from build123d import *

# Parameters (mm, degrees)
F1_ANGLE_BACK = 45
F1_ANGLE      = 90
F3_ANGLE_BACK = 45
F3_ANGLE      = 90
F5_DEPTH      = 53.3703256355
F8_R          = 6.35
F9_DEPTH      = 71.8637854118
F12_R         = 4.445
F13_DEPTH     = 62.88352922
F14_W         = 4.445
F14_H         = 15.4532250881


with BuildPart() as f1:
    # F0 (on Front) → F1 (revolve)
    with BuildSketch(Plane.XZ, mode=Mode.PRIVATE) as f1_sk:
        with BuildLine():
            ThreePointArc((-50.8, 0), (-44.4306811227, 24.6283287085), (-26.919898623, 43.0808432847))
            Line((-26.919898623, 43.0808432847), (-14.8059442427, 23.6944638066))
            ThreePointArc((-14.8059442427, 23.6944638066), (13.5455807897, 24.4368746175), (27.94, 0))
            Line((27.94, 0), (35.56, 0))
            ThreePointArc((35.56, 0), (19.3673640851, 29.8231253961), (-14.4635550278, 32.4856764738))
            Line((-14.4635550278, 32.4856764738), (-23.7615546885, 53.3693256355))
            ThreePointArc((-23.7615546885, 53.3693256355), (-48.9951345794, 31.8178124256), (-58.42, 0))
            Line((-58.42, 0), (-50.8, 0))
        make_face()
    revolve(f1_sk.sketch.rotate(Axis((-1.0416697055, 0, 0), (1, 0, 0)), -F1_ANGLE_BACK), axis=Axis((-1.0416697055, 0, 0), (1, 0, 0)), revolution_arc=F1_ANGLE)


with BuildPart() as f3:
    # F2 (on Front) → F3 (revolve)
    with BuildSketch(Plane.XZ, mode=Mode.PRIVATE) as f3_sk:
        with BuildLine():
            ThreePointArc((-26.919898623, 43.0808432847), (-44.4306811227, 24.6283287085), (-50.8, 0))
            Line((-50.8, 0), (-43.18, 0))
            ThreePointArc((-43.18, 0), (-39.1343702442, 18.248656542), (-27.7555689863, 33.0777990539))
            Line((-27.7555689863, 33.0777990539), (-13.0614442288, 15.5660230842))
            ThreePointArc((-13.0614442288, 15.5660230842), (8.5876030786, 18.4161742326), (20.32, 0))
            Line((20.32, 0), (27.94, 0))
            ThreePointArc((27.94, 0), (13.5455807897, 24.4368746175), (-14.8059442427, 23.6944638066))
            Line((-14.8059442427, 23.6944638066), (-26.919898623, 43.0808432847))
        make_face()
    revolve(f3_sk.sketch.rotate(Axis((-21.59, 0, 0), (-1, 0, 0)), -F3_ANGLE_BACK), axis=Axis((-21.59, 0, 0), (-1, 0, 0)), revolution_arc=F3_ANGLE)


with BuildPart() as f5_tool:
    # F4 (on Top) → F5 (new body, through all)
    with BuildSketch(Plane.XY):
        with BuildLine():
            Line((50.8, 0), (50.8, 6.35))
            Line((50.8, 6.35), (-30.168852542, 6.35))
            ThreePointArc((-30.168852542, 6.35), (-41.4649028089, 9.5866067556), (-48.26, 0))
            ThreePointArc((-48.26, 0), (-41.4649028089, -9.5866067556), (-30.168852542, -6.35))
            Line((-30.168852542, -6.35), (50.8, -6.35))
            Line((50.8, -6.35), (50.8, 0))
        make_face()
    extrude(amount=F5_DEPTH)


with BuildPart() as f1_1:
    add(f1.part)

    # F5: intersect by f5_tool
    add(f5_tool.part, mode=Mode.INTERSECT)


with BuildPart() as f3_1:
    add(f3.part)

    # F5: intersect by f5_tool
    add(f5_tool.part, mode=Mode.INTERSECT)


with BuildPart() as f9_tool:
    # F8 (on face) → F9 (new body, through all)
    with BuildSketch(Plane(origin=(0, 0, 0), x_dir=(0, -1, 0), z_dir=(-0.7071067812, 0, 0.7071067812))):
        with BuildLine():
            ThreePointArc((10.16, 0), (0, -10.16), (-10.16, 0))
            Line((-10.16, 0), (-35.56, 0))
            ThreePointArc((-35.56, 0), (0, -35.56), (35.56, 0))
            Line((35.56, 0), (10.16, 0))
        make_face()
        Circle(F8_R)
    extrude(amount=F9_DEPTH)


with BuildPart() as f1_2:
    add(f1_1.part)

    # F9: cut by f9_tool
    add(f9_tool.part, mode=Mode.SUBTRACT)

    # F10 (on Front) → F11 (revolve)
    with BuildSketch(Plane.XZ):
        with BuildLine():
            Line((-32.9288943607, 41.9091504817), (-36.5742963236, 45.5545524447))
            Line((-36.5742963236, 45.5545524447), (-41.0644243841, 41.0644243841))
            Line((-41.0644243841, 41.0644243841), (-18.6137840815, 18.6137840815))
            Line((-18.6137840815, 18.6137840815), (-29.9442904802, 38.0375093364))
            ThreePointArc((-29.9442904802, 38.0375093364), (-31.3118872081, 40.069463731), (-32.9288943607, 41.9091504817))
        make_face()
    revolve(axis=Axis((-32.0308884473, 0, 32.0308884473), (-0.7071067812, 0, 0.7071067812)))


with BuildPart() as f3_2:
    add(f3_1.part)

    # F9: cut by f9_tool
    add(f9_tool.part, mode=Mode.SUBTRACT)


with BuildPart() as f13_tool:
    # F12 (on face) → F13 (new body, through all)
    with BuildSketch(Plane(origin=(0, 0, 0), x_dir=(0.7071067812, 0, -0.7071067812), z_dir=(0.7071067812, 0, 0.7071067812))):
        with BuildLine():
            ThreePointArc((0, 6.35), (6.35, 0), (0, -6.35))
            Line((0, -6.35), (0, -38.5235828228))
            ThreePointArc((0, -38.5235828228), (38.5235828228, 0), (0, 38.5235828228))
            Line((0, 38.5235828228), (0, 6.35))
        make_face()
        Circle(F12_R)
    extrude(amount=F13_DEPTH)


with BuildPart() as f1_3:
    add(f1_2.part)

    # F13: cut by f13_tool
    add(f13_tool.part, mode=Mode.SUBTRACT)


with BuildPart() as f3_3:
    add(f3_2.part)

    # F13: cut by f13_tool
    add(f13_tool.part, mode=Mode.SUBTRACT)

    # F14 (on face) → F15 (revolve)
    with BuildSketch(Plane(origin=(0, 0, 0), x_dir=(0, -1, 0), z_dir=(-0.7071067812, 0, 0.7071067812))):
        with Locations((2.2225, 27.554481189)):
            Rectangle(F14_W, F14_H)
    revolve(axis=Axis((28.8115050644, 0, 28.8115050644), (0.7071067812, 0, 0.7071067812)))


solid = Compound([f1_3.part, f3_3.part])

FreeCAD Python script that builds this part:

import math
import FreeCAD as App
import Part
import Sketcher
from FreeCAD import Vector
Q = App.Units.Quantity


def add_polygon(sketch, points):
    """Adds a closed chain of lines whose ends are joined by coincident constraints."""
    first, n = sketch.GeometryCount, len(points)
    for a, b in zip(points, points[1:] + points[:1]):
        sketch.addGeometry(Part.LineSegment(App.Vector(*a, 0), App.Vector(*b, 0)), False)
    for i in range(n):
        sketch.addConstraint(Sketcher.Constraint("Coincident", first + i, 2, first + (i + 1) % n, 1))

doc = App.newDocument("Part")
params = doc.addObject("Spreadsheet::Sheet", "Params")
for row, (alias, value) in enumerate([
    ("sketch1_radius", "2 in"),
    ("sketch1_radius2", "1.1 in"),
    ("sketch1_radius3", "1.4 in"),
    ("revolution_angle", "90 deg"),
    ("sketch2_radius", "2 in"),
    ("sketch2_radius2", "1.7 in"),
    ("sketch2_radius3", "0.8 in"),
    ("revolution2_angle", "90 deg"),
    ("sketch3_radius", "0.4 in"),
    ("sketch3_height", "0.5 in"),
    ("pad1_length", "53.370326 mm"),
    ("sketch4_diameter", "0.5 in"),
    ("sketch4_radius", "0.4 in"),
    ("sketch4_radius2", "1.4 in"),
    ("pad2_length", "71.863785 mm"),
    ("sketch5_radius", "0.75 in"),
    ("sketch5_length", "0.25 in"),
    ("sketch5_length2", "1.25 in"),
    ("revolution3_angle", "360 deg"),
    ("sketch6_diameter", "0.35 in"),
    ("sketch6_radius", "0.25 in"),
    ("pad3_length", "62.883529 mm"),
    ("sketch7_width", "0.175 in"),
    ("revolution4_angle", "360 deg"),
], start=1):
    params.set(f"A{row}", alias)
    params.set(f"B{row}", "=" + value)
    params.setAlias(f"B{row}", alias)

body = doc.addObject("PartDesign::Body", "Body")

# Sketch on an angled plane
sketch1 = doc.addObject("Sketcher::SketchObject", "Sketch")
body.addObject(sketch1)
sketch1.Placement = App.Placement(Vector(0, 0, 0), App.Rotation(Vector(1, 0, 0), Vector(0, 0.707106781, 0.707106781), Vector(0, -0.707106781, 0.707106781), "ZXY"))
sketch1.addGeometry([
    Part.ArcOfCircle(Part.Circle(Vector(0, 0, 0), Vector(0, 0, 1), 50.8), math.radians(122), math.radians(180)),  # 0
    Part.LineSegment(Vector(-26.919899, 43.080843, 0), Vector(-14.805944, 23.694464, 0)),  # 1
    Part.ArcOfCircle(Part.Circle(Vector(0, 0, 0), Vector(0, 0, 1), 27.94), math.radians(0), math.radians(122)),  # 2
    Part.LineSegment(Vector(27.94, 0, 0), Vector(35.56, 0, 0)),  # 3
    Part.ArcOfCircle(Part.Circle(Vector(0, 0, 0), Vector(0, 0, 1), 35.56), math.radians(0), math.radians(114)),  # 4
    Part.LineSegment(Vector(-14.463555, 32.485676, 0), Vector(-23.761555, 53.369326, 0)),  # 5
    Part.ArcOfCircle(Part.Circle(Vector(0, 0, 0), Vector(0, 0, 1), 58.42), math.radians(114), math.radians(180)),  # 6
    Part.LineSegment(Vector(-58.42, 0, 0), Vector(-50.8, 0, 0)),  # 7
], False)
sketch1.addConstraint([
    Sketcher.Constraint("Coincident", 0, 1, 1, 1),
    Sketcher.Constraint("Coincident", 1, 2, 2, 2),
    Sketcher.Constraint("Coincident", 2, 1, 3, 1),
    Sketcher.Constraint("Coincident", 3, 2, 4, 1),
    Sketcher.Constraint("Coincident", 4, 2, 5, 1),
    Sketcher.Constraint("Coincident", 5, 2, 6, 1),
    Sketcher.Constraint("Coincident", 6, 2, 7, 1),
    Sketcher.Constraint("Coincident", 7, 2, 0, 2),
    Sketcher.Constraint("Horizontal", 3),
    Sketcher.Constraint("Horizontal", 7),
    Sketcher.Constraint("Coincident", 0, 3, -1, 1),
    Sketcher.Constraint("Coincident", 2, 3, -1, 1),
    Sketcher.Constraint("Coincident", 4, 3, -1, 1),
    Sketcher.Constraint("Coincident", 6, 3, -1, 1),
    Sketcher.Constraint("PointOnObject", 2, 1, -1),
    Sketcher.Constraint("PointOnObject", 6, 2, -1),
    Sketcher.Constraint("Equal", 3, 7),
    Sketcher.Constraint("Radius", 0, Q("2 in")),
    Sketcher.Constraint("Radius", 2, Q("1.1 in")),
    Sketcher.Constraint("Radius", 4, Q("1.4 in")),
    Sketcher.Constraint("Angle", 1, Q("-58 deg")),
    Sketcher.Constraint("Angle", 5, Q("114 deg")),
    Sketcher.Constraint("DistanceX", 0, 1, -1, 1, Q("26.919899 mm")),
    Sketcher.Constraint("DistanceX", 1, 2, 4, 2, Q("0.342389 mm")),
])
sketch1.setExpression("Constraints[17]", "Params.sketch1_radius")
sketch1.setExpression("Constraints[18]", "Params.sketch1_radius2")
sketch1.setExpression("Constraints[19]", "Params.sketch1_radius3")
revolution = doc.addObject("PartDesign::Revolution", "Revolution")
body.addObject(revolution)
revolution.Profile = sketch1
revolution.ReferenceAxis = (sketch1, ["H_Axis"])
revolution.setExpression("Angle", "Params.revolution_angle")
body2 = doc.addObject("PartDesign::Body", "Body001")

# Sketch on an angled plane
sketch2 = doc.addObject("Sketcher::SketchObject", "Sketch001")
body2.addObject(sketch2)
sketch2.Placement = App.Placement(Vector(0, 0, 0), App.Rotation(Vector(1, 0, 0), Vector(0, -0.707106781, 0.707106781), Vector(0, -0.707106781, -0.707106781), "ZXY"))
sketch2.addGeometry([
    Part.ArcOfCircle(Part.Circle(Vector(0, 0, 0), Vector(0, 0, 1), 50.8), math.radians(122), math.radians(180)),  # 0
    Part.LineSegment(Vector(-50.8, 0, 0), Vector(-43.18, 0, 0)),  # 1
    Part.ArcOfCircle(Part.Circle(Vector(0, 0, 0), Vector(0, 0, 1), 43.18), math.radians(130), math.radians(180)),  # 2
    Part.LineSegment(Vector(-27.755569, 33.077799, 0), Vector(-13.061444, 15.566023, 0)),  # 3
    Part.ArcOfCircle(Part.Circle(Vector(0, 0, 0), Vector(0, 0, 1), 20.32), math.radians(0), math.radians(130)),  # 4
    Part.LineSegment(Vector(20.32, 0, 0), Vector(27.94, 0, 0)),  # 5
    Part.ArcOfCircle(Part.Circle(Vector(0, 0, 0), Vector(0, 0, 1), 27.94), math.radians(0), math.radians(122)),  # 6
    Part.LineSegment(Vector(-14.805944, 23.694464, 0), Vector(-26.919899, 43.080843, 0)),  # 7
], False)
sketch2.addConstraint([
    Sketcher.Constraint("Coincident", 0, 2, 1, 1),
    Sketcher.Constraint("Coincident", 1, 2, 2, 2),
    Sketcher.Constraint("Coincident", 2, 1, 3, 1),
    Sketcher.Constraint("Coincident", 3, 2, 4, 2),
    Sketcher.Constraint("Coincident", 4, 1, 5, 1),
    Sketcher.Constraint("Coincident", 5, 2, 6, 1),
    Sketcher.Constraint("Coincident", 6, 2, 7, 1),
    Sketcher.Constraint("Coincident", 7, 2, 0, 1),
    Sketcher.Constraint("Horizontal", 1),
    Sketcher.Constraint("Horizontal", 5),
    Sketcher.Constraint("Coincident", 0, 3, -1, 1),
    Sketcher.Constraint("Coincident", 2, 3, -1, 1),
    Sketcher.Constraint("Coincident", 4, 3, -1, 1),
    Sketcher.Constraint("Coincident", 6, 3, -1, 1),
    Sketcher.Constraint("PointOnObject", 0, 2, -1),
    Sketcher.Constraint("PointOnObject", 4, 1, -1),
    Sketcher.Constraint("Equal", 1, 5),
    Sketcher.Constraint("Radius", 0, Q("2 in")),
    Sketcher.Constraint("Radius", 2, Q("1.7 in")),
    Sketcher.Constraint("Radius", 4, Q("0.8 in")),
    Sketcher.Constraint("Angle", 3, Q("-50 deg")),
    Sketcher.Constraint("Angle", 7, Q("122 deg")),
    Sketcher.Constraint("DistanceY", -1, 1, 2, 1, Q("33.077799 mm")),
    Sketcher.Constraint("DistanceX", 7, 2, -1, 1, Q("26.919899 mm")),
])
sketch2.setExpression("Constraints[17]", "Params.sketch2_radius")
sketch2.setExpression("Constraints[18]", "Params.sketch2_radius2")
sketch2.setExpression("Constraints[19]", "Params.sketch2_radius3")
revolution2 = doc.addObject("PartDesign::Revolution", "Revolution001")
body2.addObject(revolution2)
revolution2.Profile = sketch2
revolution2.ReferenceAxis = (sketch2, ["H_Axis"])
revolution2.setExpression("Angle", "Params.revolution2_angle")
revolution2.Reversed = True
body3 = doc.addObject("PartDesign::Body", "Body002")

# Sketch on XY plane
sketch3 = doc.addObject("Sketcher::SketchObject", "Sketch002")
body3.addObject(sketch3)
sketch3.AttachmentSupport = (doc.getObject("XY_Plane002"), [""])
sketch3.MapMode = "FlatFace"
sketch3.addGeometry([
    Part.LineSegment(Vector(50.8, 6.35, 0), Vector(-30.168853, 6.35, 0)),  # 0
    Part.ArcOfCircle(Part.Circle(Vector(-38.1, 0, 0), Vector(0, 0, 1), 10.16), math.radians(38.682187), math.radians(180)),  # 1
    Part.ArcOfCircle(Part.Circle(Vector(-38.1, 0, 0), Vector(0, 0, 1), 10.16), math.radians(180), math.radians(321.317813)),  # 2
    Part.LineSegment(Vector(-30.168853, -6.35, 0), Vector(50.8, -6.35, 0)),  # 3
    Part.LineSegment(Vector(50.8, -6.35, 0), Vector(50.8, 6.35, 0)),  # 4
], False)
sketch3.addConstraint([
    Sketcher.Constraint("Coincident", 0, 2, 1, 1),
    Sketcher.Constraint("Tangent", 1, 2, 2, 1),
    Sketcher.Constraint("Coincident", 2, 2, 3, 1),
    Sketcher.Constraint("Coincident", 3, 2, 4, 1),
    Sketcher.Constraint("Coincident", 4, 2, 0, 1),
    Sketcher.Constraint("Horizontal", 0),
    Sketcher.Constraint("Horizontal", 3),
    Sketcher.Constraint("Vertical", 4),
    Sketcher.Constraint("Equal", 1, 2),
    Sketcher.Constraint("Symmetric", 0, 2, 2, 2, -1),
    Sketcher.Constraint("PointOnObject", 1, 2, -1),
    Sketcher.Constraint("Radius", 1, Q("0.4 in")),
    Sketcher.Constraint("DistanceY", 4, 1, 4, 2, Q("0.5 in")),
    Sketcher.Constraint("DistanceX", -1, 1, 3, 2, Q("2 in")),
    Sketcher.Constraint("DistanceX", 1, 3, -1, 1, Q("1.5 in")),
])
sketch3.setExpression("Constraints[11]", "Params.sketch3_radius")
sketch3.setExpression("Constraints[12]", "Params.sketch3_height")
pad1 = doc.addObject("PartDesign::Pad", "Pad")
body3.addObject(pad1)
pad1.Profile = sketch3
pad1.setExpression("Length", "Params.pad1_length")
doc.recompute()

body4 = doc.addObject("PartDesign::Body", "Body003")
body4.BaseFeature = body3
boolean = doc.addObject("PartDesign::Boolean", "Boolean")
body.addObject(boolean)
boolean.Type = "Common"
boolean.addObjects([body4])
doc.recompute()

boolean2 = doc.addObject("PartDesign::Boolean", "Boolean001")
body2.addObject(boolean2)
boolean2.Type = "Common"
boolean2.addObjects([body3])
body5 = doc.addObject("PartDesign::Body", "Body004")
body5.AllowCompound = True

# Sketch on an angled plane
sketch4 = doc.addObject("Sketcher::SketchObject", "Sketch003")
body5.addObject(sketch4)
sketch4.Placement = App.Placement(Vector(0, 0, 0), App.Rotation(Vector(0, -1, 0), Vector(0.707106781, 0, 0.707106781), Vector(-0.707106781, 0, 0.707106781), "ZXY"))
sketch4.addGeometry([
    Part.ArcOfCircle(Part.Circle(Vector(0, 0, 0), Vector(0, 0, 1), 10.16), math.radians(180), math.radians(360)),  # 0
    Part.LineSegment(Vector(-10.16, 0, 0), Vector(-35.56, 0, 0)),  # 1
    Part.ArcOfCircle(Part.Circle(Vector(0, 0, 0), Vector(0, 0, 1), 35.56), math.radians(180), math.radians(360)),  # 2
    Part.LineSegment(Vector(35.56, 0, 0), Vector(10.16, 0, 0)),  # 3
    Part.Circle(Vector(0, 0, 0), Vector(0, 0, 1), 6.35),  # 4
], False)
sketch4.addConstraint([
    Sketcher.Constraint("Coincident", 0, 1, 1, 1),
    Sketcher.Constraint("Coincident", 1, 2, 2, 1),
    Sketcher.Constraint("Coincident", 2, 2, 3, 1),
    Sketcher.Constraint("Coincident", 3, 2, 0, 2),
    Sketcher.Constraint("Horizontal", 1),
    Sketcher.Constraint("Horizontal", 3),
    Sketcher.Constraint("Coincident", 0, 3, -1, 1),
    Sketcher.Constraint("Coincident", 2, 3, -1, 1),
    Sketcher.Constraint("Coincident", 4, 3, -1, 1),
    Sketcher.Constraint("PointOnObject", 0, 1, -1),
    Sketcher.Constraint("PointOnObject", 2, 2, -1),
    Sketcher.Constraint("Diameter", 4, Q("0.5 in")),
    Sketcher.Constraint("Radius", 0, Q("0.4 in")),
    Sketcher.Constraint("Radius", 2, Q("1.4 in")),
])
sketch4.setExpression("Constraints[11]", "Params.sketch4_diameter")
sketch4.setExpression("Constraints[12]", "Params.sketch4_radius")
sketch4.setExpression("Constraints[13]", "Params.sketch4_radius2")
pad2 = doc.addObject("PartDesign::Pad", "Pad001")
body5.addObject(pad2)
pad2.Profile = sketch4
pad2.setExpression("Length", "Params.pad2_length")
doc.recompute()

body6 = doc.addObject("PartDesign::Body", "Body005")
body6.BaseFeature = body5
boolean3 = doc.addObject("PartDesign::Boolean", "Boolean002")
body.addObject(boolean3)
boolean3.Type = "Cut"
boolean3.addObjects([body6])
doc.recompute()

# Sketch on XZ plane
sketch5 = doc.addObject("Sketcher::SketchObject", "Sketch004")
body.addObject(sketch5)
sketch5.AttachmentSupport = (doc.XZ_Plane, [""])
sketch5.MapMode = "FlatFace"
sketch5.addGeometry([
    Part.LineSegment(Vector(-32.928894, 41.90915, 0), Vector(-36.574296, 45.554552, 0)),  # 0
    Part.LineSegment(Vector(-36.574296, 45.554552, 0), Vector(-41.064424, 41.064424, 0)),  # 1
    Part.LineSegment(Vector(-41.064424, 41.064424, 0), Vector(-18.613784, 18.613784, 0)),  # 2
    Part.LineSegment(Vector(-18.613784, 18.613784, 0), Vector(-29.94429, 38.037509, 0)),  # 3
    Part.ArcOfCircle(Part.Circle(Vector(-46.399279, 28.438766, 0), Vector(0, 0, 1), 19.05), math.radians(30.256437), math.radians(45)),  # 4
], False)
sketch5.addGeometry(Part.LineSegment(Vector(-18.613784, 18.613784, 0), Vector(-41.064424, 41.064424, 0)), True)  # axis
sketch5.addConstraint([
    Sketcher.Constraint("Coincident", 0, 2, 1, 1),
    Sketcher.Constraint("Coincident", 1, 2, 2, 1),
    Sketcher.Constraint("Coincident", 2, 2, 3, 1),
    Sketcher.Constraint("Tangent", 3, 2, 4, 1),
    Sketcher.Constraint("Tangent", 4, 2, 0, 1),
    Sketcher.Constraint("Coincident", 5, 1, 2, 2),
    Sketcher.Constraint("Coincident", 5, 2, 1, 2),
    Sketcher.Constraint("Perpendicular", 0, 1),
    Sketcher.Constraint("Perpendicular", 1, 2),
    Sketcher.Constraint("Radius", 4, Q("0.75 in")),
    Sketcher.Constraint("Angle", 0, Q("135 deg")),
    Sketcher.Constraint("Distance", 1, Q("0.25 in")),
    Sketcher.Constraint("Distance", 2, Q("1.25 in")),
    Sketcher.Constraint("DistanceX", 0, 2, 4, 2, Q("3.645402 mm")),
    Sketcher.Constraint("DistanceX", 4, 3, -1, 1, Q("46.399279 mm")),
    Sketcher.Constraint("DistanceY", -1, 1, 3, 2, Q("38.037509 mm")),
])
sketch5.setExpression("Constraints[9]", "Params.sketch5_radius")
sketch5.setExpression("Constraints[11]", "Params.sketch5_length")
sketch5.setExpression("Constraints[12]", "Params.sketch5_length2")
revolution3 = doc.addObject("PartDesign::Revolution", "Revolution002")
body.addObject(revolution3)
revolution3.Profile = sketch5
revolution3.ReferenceAxis = (sketch5, ["Axis0"])
revolution3.setExpression("Angle", "Params.revolution3_angle")
doc.recompute()

boolean4 = doc.addObject("PartDesign::Boolean", "Boolean003")
body2.addObject(boolean4)
boolean4.Type = "Cut"
boolean4.addObjects([body5])
body7 = doc.addObject("PartDesign::Body", "Body006")
body7.AllowCompound = True

# Sketch on an angled plane
sketch6 = doc.addObject("Sketcher::SketchObject", "Sketch005")
body7.addObject(sketch6)
sketch6.Placement = App.Placement(Vector(0, 0, 0), App.Rotation(Vector(0.707106781, 0, -0.707106781), Vector(0, 0.999999999, 0), Vector(0.707106781, 0, 0.707106781), "ZXY"))
sketch6.addGeometry([
    Part.ArcOfCircle(Part.Circle(Vector(0, 0, 0), Vector(0, 0, 1), 6.35), math.radians(-90), math.radians(90)),  # 0
    Part.LineSegment(Vector(0, -6.35, 0), Vector(0, -38.523583, 0)),  # 1
    Part.ArcOfCircle(Part.Circle(Vector(0, 0, 0), Vector(0, 0, 1), 38.523583), math.radians(-90), math.radians(90)),  # 2
    Part.LineSegment(Vector(0, 38.523583, 0), Vector(0, 6.35, 0)),  # 3
    Part.Circle(Vector(0, 0, 0), Vector(0, 0, 1), 4.445),  # 4
], False)
sketch6.addConstraint([
    Sketcher.Constraint("Coincident", 0, 1, 1, 1),
    Sketcher.Constraint("Coincident", 1, 2, 2, 1),
    Sketcher.Constraint("Coincident", 2, 2, 3, 1),
    Sketcher.Constraint("Coincident", 3, 2, 0, 2),
    Sketcher.Constraint("Vertical", 1),
    Sketcher.Constraint("Vertical", 3),
    Sketcher.Constraint("Coincident", 0, 3, -1, 1),
    Sketcher.Constraint("Coincident", 2, 3, -1, 1),
    Sketcher.Constraint("Coincident", 4, 3, -1, 1),
    Sketcher.Constraint("PointOnObject", 0, 1, -2),
    Sketcher.Constraint("PointOnObject", 2, 2, -2),
    Sketcher.Constraint("Diameter", 4, Q("0.35 in")),
    Sketcher.Constraint("Radius", 0, Q("0.25 in")),
    Sketcher.Constraint("Radius", 2, Q("38.523583 mm")),
])
sketch6.setExpression("Constraints[11]", "Params.sketch6_diameter")
sketch6.setExpression("Constraints[12]", "Params.sketch6_radius")
pad3 = doc.addObject("PartDesign::Pad", "Pad002")
body7.addObject(pad3)
pad3.Profile = sketch6
pad3.setExpression("Length", "Params.pad3_length")
doc.recompute()

body8 = doc.addObject("PartDesign::Body", "Body007")
body8.BaseFeature = body7
boolean5 = doc.addObject("PartDesign::Boolean", "Boolean004")
body.addObject(boolean5)
boolean5.Type = "Cut"
boolean5.addObjects([body8])
doc.recompute()

boolean6 = doc.addObject("PartDesign::Boolean", "Boolean005")
body2.addObject(boolean6)
boolean6.Type = "Cut"
boolean6.addObjects([body7])

# Sketch on an angled plane
sketch7 = doc.addObject("Sketcher::SketchObject", "Sketch006")
body2.addObject(sketch7)
sketch7.Placement = App.Placement(Vector(0, 0, 0), App.Rotation(Vector(0, -1, 0), Vector(0.707106781, 0, 0.707106781), Vector(-0.707106781, 0, 0.707106781), "ZXY"))
add_polygon(sketch7, [(0, 35.281094), (0, 19.827869), (4.445, 19.827869), (4.445, 35.281094)])  # lines 0-3
sketch7.addConstraint([
    Sketcher.Constraint("Vertical", 0),
    Sketcher.Constraint("Horizontal", 1),
    Sketcher.Constraint("Vertical", 2),
    Sketcher.Constraint("Horizontal", 3),
    Sketcher.Constraint("PointOnObject", 0, 2, -2),
    Sketcher.Constraint("DistanceX", 1, 1, 1, 2, Q("0.175 in")),
    Sketcher.Constraint("DistanceY", 0, 2, 0, 1, Q("15.453225 mm")),
    Sketcher.Constraint("DistanceY", -1, 1, 0, 2, Q("19.827869 mm")),
])
sketch7.setExpression("Constraints[9]", "Params.sketch7_width")
revolution4 = doc.addObject("PartDesign::Revolution", "Revolution003")
body2.addObject(revolution4)
revolution4.Profile = sketch7
revolution4.ReferenceAxis = (sketch7, ["V_Axis"])
revolution4.setExpression("Angle", "Params.revolution4_angle")

doc.recompute()
